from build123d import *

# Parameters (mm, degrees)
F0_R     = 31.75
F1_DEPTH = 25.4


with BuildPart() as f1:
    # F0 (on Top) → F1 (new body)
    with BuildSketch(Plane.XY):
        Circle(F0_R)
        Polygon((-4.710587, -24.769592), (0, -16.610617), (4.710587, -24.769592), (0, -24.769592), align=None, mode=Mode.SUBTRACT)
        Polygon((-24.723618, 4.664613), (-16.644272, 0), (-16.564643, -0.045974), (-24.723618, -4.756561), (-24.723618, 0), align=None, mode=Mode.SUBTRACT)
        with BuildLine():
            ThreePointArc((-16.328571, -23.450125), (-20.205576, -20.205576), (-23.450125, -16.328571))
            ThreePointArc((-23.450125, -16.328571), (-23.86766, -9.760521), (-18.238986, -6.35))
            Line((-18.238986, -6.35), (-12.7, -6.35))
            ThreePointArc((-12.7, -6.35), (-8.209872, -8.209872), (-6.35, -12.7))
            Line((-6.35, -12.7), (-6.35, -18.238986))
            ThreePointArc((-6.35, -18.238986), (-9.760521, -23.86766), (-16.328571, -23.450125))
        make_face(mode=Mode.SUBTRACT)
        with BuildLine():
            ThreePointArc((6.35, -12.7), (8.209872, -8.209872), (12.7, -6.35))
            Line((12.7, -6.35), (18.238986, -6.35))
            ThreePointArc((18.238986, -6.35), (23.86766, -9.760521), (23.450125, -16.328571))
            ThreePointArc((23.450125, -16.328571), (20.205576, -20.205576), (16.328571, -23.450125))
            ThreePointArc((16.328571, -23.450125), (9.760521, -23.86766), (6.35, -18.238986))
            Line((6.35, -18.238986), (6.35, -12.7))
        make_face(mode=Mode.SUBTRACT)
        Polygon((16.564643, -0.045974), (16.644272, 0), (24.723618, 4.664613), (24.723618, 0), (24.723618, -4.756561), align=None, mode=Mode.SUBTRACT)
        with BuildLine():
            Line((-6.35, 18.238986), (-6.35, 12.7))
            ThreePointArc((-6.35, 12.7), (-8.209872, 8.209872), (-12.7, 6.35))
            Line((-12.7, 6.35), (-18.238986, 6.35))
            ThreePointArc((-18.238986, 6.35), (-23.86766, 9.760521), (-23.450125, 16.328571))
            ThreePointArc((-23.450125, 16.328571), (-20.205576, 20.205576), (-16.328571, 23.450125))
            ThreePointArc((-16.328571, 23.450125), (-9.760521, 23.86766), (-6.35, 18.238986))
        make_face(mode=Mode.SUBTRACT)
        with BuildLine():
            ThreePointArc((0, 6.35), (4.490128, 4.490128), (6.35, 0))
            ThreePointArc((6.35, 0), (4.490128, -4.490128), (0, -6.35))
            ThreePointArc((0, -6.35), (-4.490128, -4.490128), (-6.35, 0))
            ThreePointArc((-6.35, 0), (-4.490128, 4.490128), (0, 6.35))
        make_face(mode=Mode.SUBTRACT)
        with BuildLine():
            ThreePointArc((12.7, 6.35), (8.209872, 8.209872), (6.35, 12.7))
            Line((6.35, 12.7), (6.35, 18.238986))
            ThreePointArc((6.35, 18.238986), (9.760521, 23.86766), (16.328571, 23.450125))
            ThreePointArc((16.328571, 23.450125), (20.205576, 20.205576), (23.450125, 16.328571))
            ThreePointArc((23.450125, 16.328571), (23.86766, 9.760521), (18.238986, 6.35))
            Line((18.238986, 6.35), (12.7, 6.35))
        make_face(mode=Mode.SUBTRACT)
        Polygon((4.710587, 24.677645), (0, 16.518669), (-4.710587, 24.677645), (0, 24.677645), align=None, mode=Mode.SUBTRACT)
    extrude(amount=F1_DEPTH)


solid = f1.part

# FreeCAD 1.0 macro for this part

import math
import FreeCAD as App
import Part
import Sketcher
from FreeCAD import Vector
Q = App.Units.Quantity


def add_polygon(sketch, points):
    """Adds a closed chain of lines whose ends are joined by coincident constraints."""
    first, n = sketch.GeometryCount, len(points)
    for a, b in zip(points, points[1:] + points[:1]):
        sketch.addGeometry(Part.LineSegment(App.Vector(*a, 0), App.Vector(*b, 0)), False)
    for i in range(n):
        sketch.addConstraint(Sketcher.Constraint("Coincident", first + i, 2, first + (i + 1) % n, 1))

doc = App.newDocument("Part")
body = doc.addObject("PartDesign::Body", "Body")

# Sketch on XY plane
sketch1 = doc.addObject("Sketcher::SketchObject", "Sketch")
body.addObject(sketch1)
sketch1.AttachmentSupport = (doc.XY_Plane, [""])
sketch1.MapMode = "FlatFace"
sketch1.addGeometry(Part.Circle(Vector(0, 0, 0), Vector(0, 0, 1), 31.75), False)  # 0
sketch1.addGeometry(Part.ArcOfCircle(Part.Circle(Vector(-12.699999, -18.238987, 0), Vector(0, 0, 1), 6.349999), math.radians(-124.849913), math.radians(0.00001)), False)  # 1
sketch1.addGeometry(Part.ArcOfCircle(Part.Circle(Vector(-0.000008, -0.000008, 0), Vector(0, 0, 1), 28.574989), math.radians(-145.150099), math.radians(-124.849901)), False)  # 2
sketch1.addGeometry(Part.ArcOfCircle(Part.Circle(Vector(-18.238987, -12.699999, 0), Vector(0, 0, 1), 6.349999), math.radians(89.99999), math.radians(214.849913)), False)  # 3
sketch1.addGeometry(Part.LineSegment(Vector(-18.238986, -6.35, 0), Vector(-12.7, -6.35, 0)), False)  # 4
sketch1.addGeometry(Part.ArcOfCircle(Part.Circle(Vector(-12.7, -12.7, 0), Vector(0, 0, 1), 6.35), math.radians(0.000002), math.radians(89.999998)), False)  # 5
sketch1.addGeometry(Part.LineSegment(Vector(-6.35, -12.7, 0), Vector(-6.35, -18.238986, 0)), False)  # 6
add_polygon(sketch1, [(-24.723618, -4.756561), (-24.723618, 4.664613), (-16.644272, 0), (-16.564643, -0.045974)])  # lines 7-10
add_polygon(sketch1, [(4.710587, -24.769592), (-4.710587, -24.769592), (0, -16.610617)])  # lines 11-13
sketch1.addGeometry(Part.LineSegment(Vector(6.35, -18.238986, 0), Vector(6.35, -12.7, 0)), False)  # 14
sketch1.addGeometry(Part.ArcOfCircle(Part.Circle(Vector(12.7, -12.7, 0), Vector(0, 0, 1), 6.35), math.radians(90.000002), math.radians(179.999998)), False)  # 15
sketch1.addGeometry(Part.LineSegment(Vector(12.7, -6.35, 0), Vector(18.238986, -6.35, 0)), False)  # 16
sketch1.addGeometry(Part.ArcOfCircle(Part.Circle(Vector(18.238987, -12.699999, 0), Vector(0, 0, 1), 6.349999), math.radians(-34.849913), math.radians(90.00001)), False)  # 17
sketch1.addGeometry(Part.ArcOfCircle(Part.Circle(Vector(0.000008, -0.000008, 0), Vector(0, 0, 1), 28.574989), math.radians(-55.150099), math.radians(-34.849901)), False)  # 18
sketch1.addGeometry(Part.ArcOfCircle(Part.Circle(Vector(12.699999, -18.238987, 0), Vector(0, 0, 1), 6.349999), math.radians(179.99999), math.radians(304.849913)), False)  # 19
add_polygon(sketch1, [(24.723618, -4.756561), (16.564643, -0.045974), (16.644272, 0), (24.723618, 4.664613)])  # lines 20-23
sketch1.addGeometry(Part.ArcOfCircle(Part.Circle(Vector(-12.699999, 18.238987, 0), Vector(0, 0, 1), 6.349999), math.radians(-0.00001), math.radians(124.849913)), False)  # 24
sketch1.addGeometry(Part.LineSegment(Vector(-6.35, 18.238986, 0), Vector(-6.35, 12.7, 0)), False)  # 25
sketch1.addGeometry(Part.ArcOfCircle(Part.Circle(Vector(-12.7, 12.7, 0), Vector(0, 0, 1), 6.35), math.radians(-89.999998), math.radians(-0.000002)), False)  # 26
sketch1.addGeometry(Part.LineSegment(Vector(-12.7, 6.35, 0), Vector(-18.238986, 6.35, 0)), False)  # 27
sketch1.addGeometry(Part.ArcOfCircle(Part.Circle(Vector(-18.238987, 12.699999, 0), Vector(0, 0, 1), 6.349999), math.radians(145.150087), math.radians(270.00001)), False)  # 28
sketch1.addGeometry(Part.ArcOfCircle(Part.Circle(Vector(-0.000008, 0.000008, 0), Vector(0, 0, 1), 28.574989), math.radians(124.849901), math.radians(145.150099)), False)  # 29
sketch1.addGeometry(Part.ArcOfCircle(Part.Circle(Vector(0, 0, 0), Vector(0, 0, 1), 6.35), math.radians(90.000002), math.radians(179.999998)), False)  # 30
sketch1.addGeometry(Part.ArcOfCircle(Part.Circle(Vector(0, 0, 0), Vector(0, 0, 1), 6.35), math.radians(0.000002), math.radians(89.999998)), False)  # 31
sketch1.addGeometry(Part.ArcOfCircle(Part.Circle(Vector(0, 0, 0), Vector(0, 0, 1), 6.35), math.radians(-89.999998), math.radians(-0.000002)), False)  # 32
sketch1.addGeometry(Part.ArcOfCircle(Part.Circle(Vector(0, 0, 0), Vector(0, 0, 1), 6.35), math.radians(-179.999998), math.radians(-90.000002)), False)  # 33
add_polygon(sketch1, [(-4.710587, 24.677645), (4.710587, 24.677645), (0, 16.518669)])  # lines 34-36
sketch1.addGeometry(Part.LineSegment(Vector(18.238986, 6.35, 0), Vector(12.7, 6.35, 0)), False)  # 37
sketch1.addGeometry(Part.ArcOfCircle(Part.Circle(Vector(12.7, 12.7, 0), Vector(0, 0, 1), 6.35), math.radians(-179.999998), math.radians(-90.000002)), False)  # 38
sketch1.addGeometry(Part.LineSegment(Vector(6.35, 12.7, 0), Vector(6.35, 18.238986, 0)), False)  # 39
sketch1.addGeometry(Part.ArcOfCircle(Part.Circle(Vector(12.699999, 18.238987, 0), Vector(0, 0, 1), 6.349999), math.radians(55.150087), math.radians(180.00001)), False)  # 40
sketch1.addGeometry(Part.ArcOfCircle(Part.Circle(Vector(0.000008, 0.000008, 0), Vector(0, 0, 1), 28.574989), math.radians(34.849901), math.radians(55.150099)), False)  # 41
sketch1.addGeometry(Part.ArcOfCircle(Part.Circle(Vector(18.238987, 12.699999, 0), Vector(0, 0, 1), 6.349999), math.radians(-90.00001), math.radians(34.849913)), False)  # 42
sketch1.addConstraint(Sketcher.Constraint("Tangent", 1, 1, 2, 2))
sketch1.addConstraint(Sketcher.Constraint("Tangent", 2, 1, 3, 2))
sketch1.addConstraint(Sketcher.Constraint("Tangent", 3, 1, 4, 1))
sketch1.addConstraint(Sketcher.Constraint("Tangent", 4, 2, 5, 2))
sketch1.addConstraint(Sketcher.Constraint("Tangent", 5, 1, 6, 1))
sketch1.addConstraint(Sketcher.Constraint("Tangent", 6, 2, 1, 2))
sketch1.addConstraint(Sketcher.Constraint("Tangent", 14, 2, 15, 2))
sketch1.addConstraint(Sketcher.Constraint("Tangent", 15, 1, 16, 1))
sketch1.addConstraint(Sketcher.Constraint("Tangent", 16, 2, 17, 2))
sketch1.addConstraint(Sketcher.Constraint("Tangent", 17, 1, 18, 2))
sketch1.addConstraint(Sketcher.Constraint("Tangent", 18, 1, 19, 2))
sketch1.addConstraint(Sketcher.Constraint("Tangent", 19, 1, 14, 1))
sketch1.addConstraint(Sketcher.Constraint("Tangent", 24, 1, 25, 1))
sketch1.addConstraint(Sketcher.Constraint("Tangent", 25, 2, 26, 2))
sketch1.addConstraint(Sketcher.Constraint("Tangent", 26, 1, 27, 1))
sketch1.addConstraint(Sketcher.Constraint("Tangent", 27, 2, 28, 2))
sketch1.addConstraint(Sketcher.Constraint("Tangent", 28, 1, 29, 2))
sketch1.addConstraint(Sketcher.Constraint("Tangent", 29, 1, 24, 2))
sketch1.addConstraint(Sketcher.Constraint("Tangent", 30, 1, 31, 2))
sketch1.addConstraint(Sketcher.Constraint("Tangent", 31, 1, 32, 2))
sketch1.addConstraint(Sketcher.Constraint("Tangent", 32, 1, 33, 2))
sketch1.addConstraint(Sketcher.Constraint("Tangent", 33, 1, 30, 2))
sketch1.addConstraint(Sketcher.Constraint("Tangent", 37, 2, 38, 2))
sketch1.addConstraint(Sketcher.Constraint("Tangent", 38, 1, 39, 1))
sketch1.addConstraint(Sketcher.Constraint("Tangent", 39, 2, 40, 2))
sketch1.addConstraint(Sketcher.Constraint("Tangent", 40, 1, 41, 2))
sketch1.addConstraint(Sketcher.Constraint("Tangent", 41, 1, 42, 2))
sketch1.addConstraint(Sketcher.Constraint("Tangent", 42, 1, 37, 1))
sketch1.addConstraint(Sketcher.Constraint("Horizontal", 4))
sketch1.addConstraint(Sketcher.Constraint("Vertical", 6))
sketch1.addConstraint(Sketcher.Constraint("Vertical", 7))
sketch1.addConstraint(Sketcher.Constraint("Horizontal", 11))
sketch1.addConstraint(Sketcher.Constraint("Vertical", 14))
sketch1.addConstraint(Sketcher.Constraint("Horizontal", 16))
sketch1.addConstraint(Sketcher.Constraint("Vertical", 23))
sketch1.addConstraint(Sketcher.Constraint("Vertical", 25))
sketch1.addConstraint(Sketcher.Constraint("Horizontal", 27))
sketch1.addConstraint(Sketcher.Constraint("Horizontal", 34))
sketch1.addConstraint(Sketcher.Constraint("Horizontal", 37))
sketch1.addConstraint(Sketcher.Constraint("Vertical", 39))
sketch1.addConstraint(Sketcher.Constraint("Coincident", 0, 3, -1, 1))
sketch1.addConstraint(Sketcher.Constraint("Coincident", 30, 3, -1, 1))
sketch1.addConstraint(Sketcher.Constraint("Equal", 1, 3))
sketch1.addConstraint(Sketcher.Constraint("Equal", 3, 5))
sketch1.addConstraint(Sketcher.Constraint("Equal", 5, 15))
sketch1.addConstraint(Sketcher.Constraint("Equal", 15, 17))
sketch1.addConstraint(Sketcher.Constraint("Equal", 2, 18))
sketch1.addConstraint(Sketcher.Constraint("Equal", 17, 19))
sketch1.addConstraint(Sketcher.Constraint("Equal", 19, 24))
sketch1.addConstraint(Sketcher.Constraint("Equal", 24, 26))
sketch1.addConstraint(Sketcher.Constraint("Equal", 26, 28))
sketch1.addConstraint(Sketcher.Constraint("Equal", 18, 29))
sketch1.addConstraint(Sketcher.Constraint("Equal", 28, 30))
sketch1.addConstraint(Sketcher.Constraint("Equal", 30, 31))
sketch1.addConstraint(Sketcher.Constraint("Equal", 33, 38))
sketch1.addConstraint(Sketcher.Constraint("Equal", 38, 40))
sketch1.addConstraint(Sketcher.Constraint("Equal", 29, 41))
sketch1.addConstraint(Sketcher.Constraint("Equal", 40, 42))
sketch1.addConstraint(Sketcher.Constraint("Symmetric", 19, 3, 24, 3, -1, 1))
sketch1.addConstraint(Sketcher.Constraint("Symmetric", 17, 3, 28, 3, -1, 1))
sketch1.addConstraint(Sketcher.Constraint("Symmetric", 5, 3, 38, 3, -1, 1))
sketch1.addConstraint(Sketcher.Constraint("Symmetric", 2, 3, 41, 3, -1, 1))
sketch1.addConstraint(Sketcher.Constraint("Symmetric", 8, 2, 21, 2, -1, 1))
sketch1.addConstraint(Sketcher.Constraint("Symmetric", 5, 3, 15, 3, -2))
sketch1.addConstraint(Sketcher.Constraint("Symmetric", 2, 3, 18, 3, -2))
sketch1.addConstraint(Sketcher.Constraint("Symmetric", 9, 2, 20, 2, -2))
sketch1.addConstraint(Sketcher.Constraint("Symmetric", 7, 2, 22, 2, -2))
sketch1.addConstraint(Sketcher.Constraint("PointOnObject", 8, 2, -1))
sketch1.addConstraint(Sketcher.Constraint("PointOnObject", 12, 2, -2))
sketch1.addConstraint(Sketcher.Constraint("PointOnObject", 30, 1, -2))
sketch1.addConstraint(Sketcher.Constraint("PointOnObject", 31, 1, -1))
sketch1.addConstraint(Sketcher.Constraint("PointOnObject", 32, 1, -2))
sketch1.addConstraint(Sketcher.Constraint("PointOnObject", 33, 1, -1))
sketch1.addConstraint(Sketcher.Constraint("PointOnObject", 35, 2, -2))
sketch1.addConstraint(Sketcher.Constraint("Parallel", 8, 9))
sketch1.addConstraint(Sketcher.Constraint("Perpendicular", 9, 12))
sketch1.addConstraint(Sketcher.Constraint("Perpendicular", 10, 13))
sketch1.addConstraint(Sketcher.Constraint("Perpendicular", 12, 20))
sketch1.addConstraint(Sketcher.Constraint("Perpendicular", 13, 21))
sketch1.addConstraint(Sketcher.Constraint("Perpendicular", 20, 35))
sketch1.addConstraint(Sketcher.Constraint("Perpendicular", 22, 36))
sketch1.addConstraint(Sketcher.Constraint("Horizontal", 27, 2, 30, 1))
sketch1.addConstraint(Sketcher.Constraint("Vertical", 19, 1, 31, 1))
sketch1.addConstraint(Sketcher.Constraint("Vertical", 13, 2, 34, 2))
sketch1.addConstraint(Sketcher.Constraint("Equal", 37, 6))
sketch1.addConstraint(Sketcher.Constraint("Equal", 34, 7))
sketch1.addConstraint(Sketcher.Constraint("Diameter", 0, Q("2.5 in")))
sketch1.addConstraint(Sketcher.Constraint("Radius", 1, Q("0.25 in")))
sketch1.addConstraint(Sketcher.Constraint("Angle", 8, Q("-30.000002 deg")))
sketch1.addConstraint(Sketcher.Constraint("Radius", 2, Q("28.574989 mm")))
sketch1.addConstraint(Sketcher.Constraint("DistanceX", 4, 1, 4, 2, Q("5.538986 mm")))
sketch1.addConstraint(Sketcher.Constraint("DistanceX", 11, 2, 11, 1, Q("9.421174 mm")))
sketch1.addConstraint(Sketcher.Constraint("DistanceY", 10, 2, -1, 1, Q("4.756561 mm")))
sketch1.addConstraint(Sketcher.Constraint("DistanceY", 11, 2, -1, 1, Q("24.769592 mm")))
sketch1.addConstraint(Sketcher.Constraint("DistanceY", -1, 1, 35, 2, Q("16.518669 mm")))
sketch1.addConstraint(Sketcher.Constraint("DistanceX", 7, 2, -1, 1, Q("24.723618 mm")))
pad1 = doc.addObject("PartDesign::Pad", "Pad")
body.addObject(pad1)
pad1.Profile = sketch1
pad1.Length = Q("1 in")

doc.recompute()
